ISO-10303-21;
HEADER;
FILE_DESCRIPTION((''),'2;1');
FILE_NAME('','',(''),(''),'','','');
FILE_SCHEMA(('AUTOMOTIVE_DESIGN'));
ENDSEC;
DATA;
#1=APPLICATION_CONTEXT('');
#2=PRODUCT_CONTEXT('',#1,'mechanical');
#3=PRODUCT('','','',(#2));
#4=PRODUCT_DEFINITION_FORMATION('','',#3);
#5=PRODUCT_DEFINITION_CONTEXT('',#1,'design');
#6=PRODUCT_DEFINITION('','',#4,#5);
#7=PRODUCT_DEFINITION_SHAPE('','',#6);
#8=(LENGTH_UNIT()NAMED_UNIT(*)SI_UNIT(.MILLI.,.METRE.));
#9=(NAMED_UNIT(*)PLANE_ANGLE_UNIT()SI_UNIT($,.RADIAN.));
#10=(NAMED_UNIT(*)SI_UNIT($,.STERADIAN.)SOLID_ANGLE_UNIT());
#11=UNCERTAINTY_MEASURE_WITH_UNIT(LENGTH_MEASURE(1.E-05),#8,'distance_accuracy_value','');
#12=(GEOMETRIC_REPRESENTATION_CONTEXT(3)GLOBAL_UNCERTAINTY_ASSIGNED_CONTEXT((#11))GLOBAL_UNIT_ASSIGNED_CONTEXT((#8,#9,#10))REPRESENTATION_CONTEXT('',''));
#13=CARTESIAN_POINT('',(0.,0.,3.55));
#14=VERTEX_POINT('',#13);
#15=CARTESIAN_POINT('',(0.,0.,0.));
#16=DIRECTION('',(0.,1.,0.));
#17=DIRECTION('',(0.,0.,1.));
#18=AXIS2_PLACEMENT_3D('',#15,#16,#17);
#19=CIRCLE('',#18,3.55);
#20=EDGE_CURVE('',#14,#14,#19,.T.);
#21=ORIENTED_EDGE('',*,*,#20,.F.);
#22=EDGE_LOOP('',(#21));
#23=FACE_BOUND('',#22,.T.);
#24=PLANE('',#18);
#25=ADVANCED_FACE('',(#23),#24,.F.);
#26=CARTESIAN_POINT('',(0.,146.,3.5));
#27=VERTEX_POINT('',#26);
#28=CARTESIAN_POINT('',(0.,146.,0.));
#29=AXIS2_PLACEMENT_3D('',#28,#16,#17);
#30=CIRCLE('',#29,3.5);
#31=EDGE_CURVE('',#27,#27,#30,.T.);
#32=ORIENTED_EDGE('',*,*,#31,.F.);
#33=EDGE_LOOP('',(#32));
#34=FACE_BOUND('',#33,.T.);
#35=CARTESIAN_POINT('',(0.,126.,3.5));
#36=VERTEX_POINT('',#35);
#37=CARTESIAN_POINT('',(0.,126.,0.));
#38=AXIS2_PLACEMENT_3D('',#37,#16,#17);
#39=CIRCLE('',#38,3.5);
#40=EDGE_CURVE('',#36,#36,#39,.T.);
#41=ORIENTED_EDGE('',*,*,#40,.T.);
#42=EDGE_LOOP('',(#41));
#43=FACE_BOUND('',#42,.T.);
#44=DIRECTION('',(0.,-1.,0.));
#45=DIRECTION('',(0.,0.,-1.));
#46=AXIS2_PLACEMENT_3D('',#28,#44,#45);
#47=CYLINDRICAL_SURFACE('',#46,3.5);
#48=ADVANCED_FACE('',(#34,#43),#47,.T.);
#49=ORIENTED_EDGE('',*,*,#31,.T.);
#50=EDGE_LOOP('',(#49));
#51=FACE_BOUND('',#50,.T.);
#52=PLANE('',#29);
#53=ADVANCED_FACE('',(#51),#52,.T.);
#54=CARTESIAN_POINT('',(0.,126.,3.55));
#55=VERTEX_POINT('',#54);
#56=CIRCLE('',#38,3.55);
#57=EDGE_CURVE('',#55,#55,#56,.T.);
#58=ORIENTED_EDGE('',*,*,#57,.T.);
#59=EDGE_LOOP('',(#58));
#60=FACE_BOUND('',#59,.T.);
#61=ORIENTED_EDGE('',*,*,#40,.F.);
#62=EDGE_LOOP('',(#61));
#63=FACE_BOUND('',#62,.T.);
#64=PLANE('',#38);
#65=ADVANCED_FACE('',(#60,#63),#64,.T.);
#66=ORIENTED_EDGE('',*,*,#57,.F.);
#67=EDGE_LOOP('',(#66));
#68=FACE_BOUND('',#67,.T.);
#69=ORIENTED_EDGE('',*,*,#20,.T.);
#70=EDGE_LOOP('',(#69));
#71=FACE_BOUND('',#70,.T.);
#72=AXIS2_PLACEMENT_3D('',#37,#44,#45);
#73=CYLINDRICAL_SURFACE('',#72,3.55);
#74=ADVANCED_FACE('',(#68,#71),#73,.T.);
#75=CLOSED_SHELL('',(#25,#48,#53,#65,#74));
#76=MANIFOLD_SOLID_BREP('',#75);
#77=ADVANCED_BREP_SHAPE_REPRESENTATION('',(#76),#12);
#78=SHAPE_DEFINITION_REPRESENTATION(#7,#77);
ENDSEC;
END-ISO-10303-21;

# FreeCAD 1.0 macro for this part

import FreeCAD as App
import Part
import Sketcher

doc = App.newDocument("Part")
body = doc.addObject("PartDesign::Body", "Body")

sketch1 = doc.addObject("Sketcher::SketchObject", "Sketch")
body.addObject(sketch1)
sketch1.AttachmentSupport = (doc.XZ_Plane, [""])
sketch1.MapMode = "FlatFace"
sketch1.addGeometry(Part.Circle(App.Vector(0, 0, 0), App.Vector(0, 0, 1), 3.5), False)
sketch1.addConstraint(Sketcher.Constraint("Coincident", 0, 3, -1, 1))
sketch1.addConstraint(Sketcher.Constraint("Diameter", 0, 7.1))
pad1 = doc.addObject("PartDesign::Pad", "Pad")
body.addObject(pad1)
pad1.Profile = sketch1
pad1.Length = 126
pad1.Reversed = True

sketch2 = doc.addObject("Sketcher::SketchObject", "Sketch001")
body.addObject(sketch2)
sketch2.AttachmentSupport = (doc.XZ_Plane, [""])
sketch2.MapMode = "FlatFace"
sketch2.AttachmentOffset = App.Placement(App.Vector(0, 0, -126), App.Rotation())
sketch2.addGeometry(Part.Circle(App.Vector(0, 0, 0), App.Vector(0, 0, 1), 3.5), False)
sketch2.addConstraint(Sketcher.Constraint("Coincident", 0, 3, -1, 1))
sketch2.addConstraint(Sketcher.Constraint("Diameter", 0, 7.0))
pad2 = doc.addObject("PartDesign::Pad", "Pad001")
body.addObject(pad2)
pad2.Profile = sketch2
pad2.Length = 20
pad2.Reversed = True

doc.recompute()
